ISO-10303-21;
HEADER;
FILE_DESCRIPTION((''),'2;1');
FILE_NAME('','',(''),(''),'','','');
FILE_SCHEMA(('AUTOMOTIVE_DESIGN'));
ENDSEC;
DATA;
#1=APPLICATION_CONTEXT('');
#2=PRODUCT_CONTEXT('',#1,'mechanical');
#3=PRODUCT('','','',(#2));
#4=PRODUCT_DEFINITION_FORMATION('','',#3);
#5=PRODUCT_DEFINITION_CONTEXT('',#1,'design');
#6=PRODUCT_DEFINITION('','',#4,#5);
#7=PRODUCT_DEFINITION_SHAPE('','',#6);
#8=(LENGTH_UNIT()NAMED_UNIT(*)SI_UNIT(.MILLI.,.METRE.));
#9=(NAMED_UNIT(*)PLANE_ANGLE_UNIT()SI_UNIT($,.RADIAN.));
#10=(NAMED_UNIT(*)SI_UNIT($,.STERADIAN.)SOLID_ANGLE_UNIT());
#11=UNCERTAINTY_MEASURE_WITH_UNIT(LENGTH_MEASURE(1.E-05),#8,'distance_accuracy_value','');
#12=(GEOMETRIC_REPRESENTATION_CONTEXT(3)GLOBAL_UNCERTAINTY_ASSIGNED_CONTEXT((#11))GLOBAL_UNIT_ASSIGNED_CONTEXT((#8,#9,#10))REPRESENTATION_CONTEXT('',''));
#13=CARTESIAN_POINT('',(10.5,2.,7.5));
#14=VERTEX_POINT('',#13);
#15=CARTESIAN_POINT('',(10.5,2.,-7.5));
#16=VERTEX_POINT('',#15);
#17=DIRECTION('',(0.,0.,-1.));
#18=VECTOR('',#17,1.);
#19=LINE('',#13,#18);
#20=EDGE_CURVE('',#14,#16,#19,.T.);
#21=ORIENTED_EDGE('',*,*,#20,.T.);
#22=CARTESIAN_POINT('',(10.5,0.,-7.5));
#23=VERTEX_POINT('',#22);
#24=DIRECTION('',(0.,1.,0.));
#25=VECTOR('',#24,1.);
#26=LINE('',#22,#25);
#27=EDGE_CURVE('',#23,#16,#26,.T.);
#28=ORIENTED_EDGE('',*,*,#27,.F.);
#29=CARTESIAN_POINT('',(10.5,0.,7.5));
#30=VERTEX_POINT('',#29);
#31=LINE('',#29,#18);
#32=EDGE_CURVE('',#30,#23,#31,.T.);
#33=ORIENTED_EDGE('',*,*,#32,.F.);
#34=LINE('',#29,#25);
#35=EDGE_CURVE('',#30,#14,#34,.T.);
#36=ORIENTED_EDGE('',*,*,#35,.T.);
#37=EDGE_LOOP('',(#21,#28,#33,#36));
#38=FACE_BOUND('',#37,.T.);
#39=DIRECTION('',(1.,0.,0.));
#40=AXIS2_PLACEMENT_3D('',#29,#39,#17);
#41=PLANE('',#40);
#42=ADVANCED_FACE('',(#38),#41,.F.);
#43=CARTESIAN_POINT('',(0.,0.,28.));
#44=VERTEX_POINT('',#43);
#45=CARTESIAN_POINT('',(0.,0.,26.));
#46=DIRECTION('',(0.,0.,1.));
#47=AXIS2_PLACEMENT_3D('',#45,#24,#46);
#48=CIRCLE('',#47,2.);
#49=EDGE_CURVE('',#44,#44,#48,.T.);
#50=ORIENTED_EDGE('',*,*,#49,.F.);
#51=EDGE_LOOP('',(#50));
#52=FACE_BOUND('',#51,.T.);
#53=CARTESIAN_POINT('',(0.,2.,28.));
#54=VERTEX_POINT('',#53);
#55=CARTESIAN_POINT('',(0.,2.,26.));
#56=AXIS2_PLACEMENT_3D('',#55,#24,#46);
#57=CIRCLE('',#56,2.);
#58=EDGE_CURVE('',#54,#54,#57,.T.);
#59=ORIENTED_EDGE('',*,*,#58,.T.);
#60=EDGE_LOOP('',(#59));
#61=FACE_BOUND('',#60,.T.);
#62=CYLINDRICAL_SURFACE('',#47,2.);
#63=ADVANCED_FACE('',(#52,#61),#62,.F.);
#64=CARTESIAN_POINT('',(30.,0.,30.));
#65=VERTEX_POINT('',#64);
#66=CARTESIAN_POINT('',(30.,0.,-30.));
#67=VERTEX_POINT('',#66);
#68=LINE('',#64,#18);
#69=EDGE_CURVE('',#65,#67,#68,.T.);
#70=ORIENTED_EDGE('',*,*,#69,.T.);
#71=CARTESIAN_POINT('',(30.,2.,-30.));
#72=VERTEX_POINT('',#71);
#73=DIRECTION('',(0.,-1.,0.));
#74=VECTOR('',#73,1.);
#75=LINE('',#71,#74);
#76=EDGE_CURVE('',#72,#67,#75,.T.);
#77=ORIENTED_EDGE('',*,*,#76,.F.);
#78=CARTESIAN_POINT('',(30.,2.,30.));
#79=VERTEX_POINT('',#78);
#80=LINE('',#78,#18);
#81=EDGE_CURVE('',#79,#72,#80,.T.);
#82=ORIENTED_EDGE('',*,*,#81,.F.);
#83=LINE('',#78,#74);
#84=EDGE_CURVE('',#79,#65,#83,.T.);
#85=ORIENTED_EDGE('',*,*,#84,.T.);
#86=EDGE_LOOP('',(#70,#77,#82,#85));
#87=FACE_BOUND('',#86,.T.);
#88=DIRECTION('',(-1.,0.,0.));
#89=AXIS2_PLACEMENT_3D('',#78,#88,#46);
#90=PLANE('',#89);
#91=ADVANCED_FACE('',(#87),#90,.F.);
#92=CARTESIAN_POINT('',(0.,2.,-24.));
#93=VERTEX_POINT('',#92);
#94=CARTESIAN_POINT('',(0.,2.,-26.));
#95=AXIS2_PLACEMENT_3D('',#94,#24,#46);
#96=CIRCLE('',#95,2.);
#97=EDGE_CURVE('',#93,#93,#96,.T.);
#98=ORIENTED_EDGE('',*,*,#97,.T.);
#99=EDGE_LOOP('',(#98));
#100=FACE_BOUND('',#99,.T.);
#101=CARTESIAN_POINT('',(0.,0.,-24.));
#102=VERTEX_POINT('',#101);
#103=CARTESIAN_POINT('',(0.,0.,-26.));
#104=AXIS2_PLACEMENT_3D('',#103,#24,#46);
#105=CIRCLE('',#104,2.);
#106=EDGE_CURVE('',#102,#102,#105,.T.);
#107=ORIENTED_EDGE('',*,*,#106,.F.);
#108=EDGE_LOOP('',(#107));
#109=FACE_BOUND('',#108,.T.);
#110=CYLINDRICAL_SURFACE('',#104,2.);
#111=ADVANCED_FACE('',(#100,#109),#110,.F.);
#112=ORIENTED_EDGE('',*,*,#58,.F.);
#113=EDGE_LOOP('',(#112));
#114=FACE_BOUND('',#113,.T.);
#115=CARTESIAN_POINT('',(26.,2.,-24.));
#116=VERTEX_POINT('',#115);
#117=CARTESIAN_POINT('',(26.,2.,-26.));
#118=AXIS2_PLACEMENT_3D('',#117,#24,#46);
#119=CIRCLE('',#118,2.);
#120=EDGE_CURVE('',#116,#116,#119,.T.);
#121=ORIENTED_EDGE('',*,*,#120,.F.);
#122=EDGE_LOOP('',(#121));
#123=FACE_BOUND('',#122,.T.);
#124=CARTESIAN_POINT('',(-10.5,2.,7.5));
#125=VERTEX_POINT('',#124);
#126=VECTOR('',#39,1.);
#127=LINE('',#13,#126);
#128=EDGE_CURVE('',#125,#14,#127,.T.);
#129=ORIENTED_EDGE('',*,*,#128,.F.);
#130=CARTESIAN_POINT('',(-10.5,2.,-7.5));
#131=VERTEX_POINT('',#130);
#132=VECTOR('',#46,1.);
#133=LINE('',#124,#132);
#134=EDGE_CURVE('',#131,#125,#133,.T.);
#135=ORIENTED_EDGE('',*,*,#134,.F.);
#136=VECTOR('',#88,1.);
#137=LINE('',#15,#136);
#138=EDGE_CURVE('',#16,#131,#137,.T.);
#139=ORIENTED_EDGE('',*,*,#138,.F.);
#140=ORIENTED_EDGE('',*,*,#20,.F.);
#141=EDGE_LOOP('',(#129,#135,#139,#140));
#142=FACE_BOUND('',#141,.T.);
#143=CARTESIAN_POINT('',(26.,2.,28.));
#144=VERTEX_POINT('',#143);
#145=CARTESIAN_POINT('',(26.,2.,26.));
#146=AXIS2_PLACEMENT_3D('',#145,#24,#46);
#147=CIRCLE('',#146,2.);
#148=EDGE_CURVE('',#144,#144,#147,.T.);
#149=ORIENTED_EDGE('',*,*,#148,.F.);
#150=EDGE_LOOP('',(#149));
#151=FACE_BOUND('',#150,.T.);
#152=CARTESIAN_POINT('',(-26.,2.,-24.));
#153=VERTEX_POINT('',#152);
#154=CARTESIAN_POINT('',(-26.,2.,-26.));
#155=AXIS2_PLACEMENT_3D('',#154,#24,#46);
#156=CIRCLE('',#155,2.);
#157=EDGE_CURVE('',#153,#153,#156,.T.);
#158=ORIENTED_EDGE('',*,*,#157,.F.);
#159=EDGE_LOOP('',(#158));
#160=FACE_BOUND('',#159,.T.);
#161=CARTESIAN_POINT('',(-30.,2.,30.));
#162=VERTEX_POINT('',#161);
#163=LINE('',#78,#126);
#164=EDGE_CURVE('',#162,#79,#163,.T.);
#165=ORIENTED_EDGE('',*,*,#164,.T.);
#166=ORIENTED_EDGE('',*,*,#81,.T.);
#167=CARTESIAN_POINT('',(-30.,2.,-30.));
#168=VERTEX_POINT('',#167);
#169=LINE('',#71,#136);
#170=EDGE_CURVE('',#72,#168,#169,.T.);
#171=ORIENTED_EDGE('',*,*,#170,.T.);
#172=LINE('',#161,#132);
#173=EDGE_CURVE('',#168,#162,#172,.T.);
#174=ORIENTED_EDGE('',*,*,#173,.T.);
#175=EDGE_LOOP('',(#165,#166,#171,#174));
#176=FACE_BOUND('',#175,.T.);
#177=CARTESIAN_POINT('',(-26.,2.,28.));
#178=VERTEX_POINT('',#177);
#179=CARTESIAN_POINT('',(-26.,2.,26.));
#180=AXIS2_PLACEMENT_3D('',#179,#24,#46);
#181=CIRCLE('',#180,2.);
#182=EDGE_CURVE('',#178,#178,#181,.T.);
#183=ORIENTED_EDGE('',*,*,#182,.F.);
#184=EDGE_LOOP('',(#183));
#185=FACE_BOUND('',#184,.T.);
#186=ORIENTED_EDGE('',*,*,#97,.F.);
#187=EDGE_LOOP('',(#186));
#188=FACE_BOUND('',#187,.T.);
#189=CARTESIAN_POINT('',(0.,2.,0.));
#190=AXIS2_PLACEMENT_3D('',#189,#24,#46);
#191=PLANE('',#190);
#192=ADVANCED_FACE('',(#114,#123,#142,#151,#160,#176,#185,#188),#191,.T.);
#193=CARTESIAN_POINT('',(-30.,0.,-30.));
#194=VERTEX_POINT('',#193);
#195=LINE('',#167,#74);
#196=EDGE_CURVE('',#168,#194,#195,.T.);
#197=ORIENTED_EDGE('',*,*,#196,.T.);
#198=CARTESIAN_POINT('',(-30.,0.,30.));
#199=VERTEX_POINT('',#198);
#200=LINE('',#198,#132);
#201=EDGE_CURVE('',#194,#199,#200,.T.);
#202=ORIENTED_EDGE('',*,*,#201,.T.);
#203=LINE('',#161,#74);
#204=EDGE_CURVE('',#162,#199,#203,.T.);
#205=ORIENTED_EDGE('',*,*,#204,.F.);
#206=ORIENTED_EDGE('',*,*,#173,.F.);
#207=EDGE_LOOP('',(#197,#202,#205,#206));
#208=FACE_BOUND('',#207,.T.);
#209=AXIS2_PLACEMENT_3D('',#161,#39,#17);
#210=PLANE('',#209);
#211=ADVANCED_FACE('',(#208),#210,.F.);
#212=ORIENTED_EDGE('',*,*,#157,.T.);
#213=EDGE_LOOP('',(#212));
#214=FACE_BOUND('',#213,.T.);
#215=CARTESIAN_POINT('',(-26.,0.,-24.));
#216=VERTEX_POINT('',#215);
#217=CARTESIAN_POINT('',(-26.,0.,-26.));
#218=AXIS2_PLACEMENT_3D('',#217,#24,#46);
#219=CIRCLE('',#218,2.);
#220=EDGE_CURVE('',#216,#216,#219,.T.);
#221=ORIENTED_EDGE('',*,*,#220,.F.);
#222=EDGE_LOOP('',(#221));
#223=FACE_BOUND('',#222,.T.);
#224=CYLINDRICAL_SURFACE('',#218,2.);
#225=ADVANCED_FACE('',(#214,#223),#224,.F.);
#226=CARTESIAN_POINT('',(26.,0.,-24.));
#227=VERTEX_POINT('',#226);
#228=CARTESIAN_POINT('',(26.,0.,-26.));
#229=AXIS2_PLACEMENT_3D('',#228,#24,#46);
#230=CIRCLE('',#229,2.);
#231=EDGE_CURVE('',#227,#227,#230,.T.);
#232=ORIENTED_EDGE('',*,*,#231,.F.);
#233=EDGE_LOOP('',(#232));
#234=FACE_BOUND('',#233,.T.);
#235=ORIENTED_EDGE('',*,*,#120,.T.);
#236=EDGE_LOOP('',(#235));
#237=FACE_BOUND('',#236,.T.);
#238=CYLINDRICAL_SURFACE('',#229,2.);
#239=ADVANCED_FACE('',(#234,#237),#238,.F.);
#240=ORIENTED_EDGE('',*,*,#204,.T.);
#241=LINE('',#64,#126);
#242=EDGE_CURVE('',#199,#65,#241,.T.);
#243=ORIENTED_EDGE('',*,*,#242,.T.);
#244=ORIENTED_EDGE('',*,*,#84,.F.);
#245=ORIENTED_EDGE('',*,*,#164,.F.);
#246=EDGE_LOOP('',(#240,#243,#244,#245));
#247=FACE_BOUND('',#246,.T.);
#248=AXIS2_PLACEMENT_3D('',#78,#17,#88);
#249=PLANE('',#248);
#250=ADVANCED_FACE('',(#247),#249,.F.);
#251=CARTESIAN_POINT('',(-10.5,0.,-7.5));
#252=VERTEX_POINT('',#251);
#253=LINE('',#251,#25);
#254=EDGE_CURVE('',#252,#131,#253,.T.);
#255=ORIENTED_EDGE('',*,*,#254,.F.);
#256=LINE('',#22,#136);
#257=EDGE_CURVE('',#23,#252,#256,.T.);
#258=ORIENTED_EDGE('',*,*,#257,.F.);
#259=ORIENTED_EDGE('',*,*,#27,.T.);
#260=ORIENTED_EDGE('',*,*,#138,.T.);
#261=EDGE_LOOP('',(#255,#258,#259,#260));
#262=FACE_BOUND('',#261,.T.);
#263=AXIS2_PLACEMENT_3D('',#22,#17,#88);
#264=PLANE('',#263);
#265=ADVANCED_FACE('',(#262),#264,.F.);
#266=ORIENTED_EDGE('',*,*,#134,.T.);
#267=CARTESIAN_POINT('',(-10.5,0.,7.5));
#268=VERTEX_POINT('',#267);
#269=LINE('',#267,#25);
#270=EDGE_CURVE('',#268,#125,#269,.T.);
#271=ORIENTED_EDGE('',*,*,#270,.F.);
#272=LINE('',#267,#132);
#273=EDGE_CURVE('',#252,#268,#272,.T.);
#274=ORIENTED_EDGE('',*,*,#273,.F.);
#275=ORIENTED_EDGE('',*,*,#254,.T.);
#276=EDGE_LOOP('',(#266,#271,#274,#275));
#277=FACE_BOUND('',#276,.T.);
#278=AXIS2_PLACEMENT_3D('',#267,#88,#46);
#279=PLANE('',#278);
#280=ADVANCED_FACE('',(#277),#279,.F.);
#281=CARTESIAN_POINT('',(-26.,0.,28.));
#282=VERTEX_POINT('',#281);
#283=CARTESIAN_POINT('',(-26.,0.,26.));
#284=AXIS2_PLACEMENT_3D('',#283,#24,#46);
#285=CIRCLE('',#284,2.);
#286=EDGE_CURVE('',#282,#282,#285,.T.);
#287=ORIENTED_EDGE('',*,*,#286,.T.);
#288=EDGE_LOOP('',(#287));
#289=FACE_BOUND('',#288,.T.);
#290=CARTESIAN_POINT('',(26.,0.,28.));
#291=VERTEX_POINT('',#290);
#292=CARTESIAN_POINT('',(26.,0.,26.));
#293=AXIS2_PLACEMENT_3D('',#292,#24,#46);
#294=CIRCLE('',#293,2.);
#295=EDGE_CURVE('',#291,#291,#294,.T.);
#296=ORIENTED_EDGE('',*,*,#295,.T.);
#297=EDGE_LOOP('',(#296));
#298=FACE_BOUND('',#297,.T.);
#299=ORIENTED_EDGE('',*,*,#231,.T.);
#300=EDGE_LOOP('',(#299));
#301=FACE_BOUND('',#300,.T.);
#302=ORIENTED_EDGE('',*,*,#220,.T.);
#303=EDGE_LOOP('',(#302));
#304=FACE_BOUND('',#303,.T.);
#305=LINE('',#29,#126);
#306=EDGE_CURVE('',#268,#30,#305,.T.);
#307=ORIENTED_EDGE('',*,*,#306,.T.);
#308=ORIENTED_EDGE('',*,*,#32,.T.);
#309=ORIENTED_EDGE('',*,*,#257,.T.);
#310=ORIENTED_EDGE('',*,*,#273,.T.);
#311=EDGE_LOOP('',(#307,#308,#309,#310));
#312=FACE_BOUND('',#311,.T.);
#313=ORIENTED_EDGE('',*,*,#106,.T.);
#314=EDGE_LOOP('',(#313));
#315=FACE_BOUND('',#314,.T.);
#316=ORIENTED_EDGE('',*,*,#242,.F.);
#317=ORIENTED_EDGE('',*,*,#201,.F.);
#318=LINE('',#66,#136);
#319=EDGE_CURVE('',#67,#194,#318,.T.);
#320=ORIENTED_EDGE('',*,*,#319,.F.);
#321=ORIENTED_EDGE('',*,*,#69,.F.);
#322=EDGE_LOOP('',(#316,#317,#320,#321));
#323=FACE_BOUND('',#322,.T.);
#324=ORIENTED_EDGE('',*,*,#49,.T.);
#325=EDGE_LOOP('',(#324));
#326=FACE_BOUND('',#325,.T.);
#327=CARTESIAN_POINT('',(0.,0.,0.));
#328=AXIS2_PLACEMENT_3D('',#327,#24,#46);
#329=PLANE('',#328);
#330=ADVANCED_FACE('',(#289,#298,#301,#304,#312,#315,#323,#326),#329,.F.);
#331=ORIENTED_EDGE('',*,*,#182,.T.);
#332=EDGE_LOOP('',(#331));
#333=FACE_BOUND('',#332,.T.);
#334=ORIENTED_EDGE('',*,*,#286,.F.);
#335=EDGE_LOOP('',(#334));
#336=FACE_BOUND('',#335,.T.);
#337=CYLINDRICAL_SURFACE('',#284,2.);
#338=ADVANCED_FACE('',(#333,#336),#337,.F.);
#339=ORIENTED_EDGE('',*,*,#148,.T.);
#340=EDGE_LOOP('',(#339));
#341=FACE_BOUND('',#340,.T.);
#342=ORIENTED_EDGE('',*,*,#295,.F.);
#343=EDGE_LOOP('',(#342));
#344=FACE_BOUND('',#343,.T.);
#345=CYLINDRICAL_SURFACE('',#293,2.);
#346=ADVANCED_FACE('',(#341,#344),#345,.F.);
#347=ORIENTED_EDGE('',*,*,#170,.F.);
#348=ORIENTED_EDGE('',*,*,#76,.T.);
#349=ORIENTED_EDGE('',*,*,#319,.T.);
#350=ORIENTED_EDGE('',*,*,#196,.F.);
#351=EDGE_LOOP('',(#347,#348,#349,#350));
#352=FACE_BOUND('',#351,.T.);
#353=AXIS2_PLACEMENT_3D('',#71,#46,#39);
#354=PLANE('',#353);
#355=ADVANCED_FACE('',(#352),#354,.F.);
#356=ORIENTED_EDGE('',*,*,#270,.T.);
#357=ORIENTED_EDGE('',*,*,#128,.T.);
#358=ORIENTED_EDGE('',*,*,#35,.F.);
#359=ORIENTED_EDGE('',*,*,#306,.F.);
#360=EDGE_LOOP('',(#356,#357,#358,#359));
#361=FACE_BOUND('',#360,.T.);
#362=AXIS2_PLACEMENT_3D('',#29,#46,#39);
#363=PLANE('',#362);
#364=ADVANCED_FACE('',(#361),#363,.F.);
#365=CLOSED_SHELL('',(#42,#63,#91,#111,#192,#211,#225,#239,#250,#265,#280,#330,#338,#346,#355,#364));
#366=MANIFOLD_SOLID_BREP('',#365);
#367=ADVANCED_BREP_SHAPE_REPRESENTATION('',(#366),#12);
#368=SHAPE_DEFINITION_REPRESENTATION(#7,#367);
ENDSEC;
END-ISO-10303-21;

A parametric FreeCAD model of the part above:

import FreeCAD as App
import Part
import Sketcher

doc = App.newDocument("Part")
body = doc.addObject("PartDesign::Body", "Body")

# Sketch on XZ plane
sketch1 = body.newObject("Sketcher::SketchObject", "Sketch")
sketch1.AttachmentSupport = (doc.getObject("XZ_Plane"), [""])
sketch1.MapMode = "FlatFace"
sketch1.addGeometry([
    Part.LineSegment(App.Vector(-30, -30, 0), App.Vector(-30, 30, 0)),
    Part.LineSegment(App.Vector(-30, 30, 0), App.Vector(30, 30, 0)),
    Part.LineSegment(App.Vector(30, 30, 0), App.Vector(30, -30, 0)),
    Part.LineSegment(App.Vector(30, -30, 0), App.Vector(-30, -30, 0)),
], False)
sketch1.addConstraint([
    Sketcher.Constraint("Coincident", 0, 2, 1, 1),
    Sketcher.Constraint("Coincident", 1, 2, 2, 1),
    Sketcher.Constraint("Coincident", 2, 2, 3, 1),
    Sketcher.Constraint("Coincident", 3, 2, 0, 1),
    Sketcher.Constraint("Vertical", 0),
    Sketcher.Constraint("Horizontal", 1),
    Sketcher.Constraint("Vertical", 2),
    Sketcher.Constraint("Horizontal", 3),
    Sketcher.Constraint("Symmetric", 0, 2, 2, 2, -1, 1),
    Sketcher.Constraint("Equal", 3, 0),
    Sketcher.Constraint("DistanceX", 1, 1, 1, 2, 60.0),
])
pad1 = body.newObject("PartDesign::Pad", "Pad")
pad1.Profile = sketch1
pad1.Length = 2
pad1.Reversed = True

# Sketch on XZ plane
sketch2 = body.newObject("Sketcher::SketchObject", "Sketch001")
sketch2.AttachmentSupport = (doc.getObject("XZ_Plane"), [""])
sketch2.MapMode = "FlatFace"
sketch2.AttachmentOffset = App.Placement(App.Vector(0, 0, -2), App.Rotation())
sketch2.addGeometry([
    Part.Circle(App.Vector(-26, -26, 0), App.Vector(0, 0, 1), 2),  # 0
    Part.Circle(App.Vector(0, -26, 0), App.Vector(0, 0, 1), 2),  # 1
    Part.Circle(App.Vector(26, -26, 0), App.Vector(0, 0, 1), 2),  # 2
    Part.Circle(App.Vector(26, 26, 0), App.Vector(0, 0, 1), 2),  # 3
    Part.Circle(App.Vector(0, 26, 0), App.Vector(0, 0, 1), 2),  # 4
    Part.Circle(App.Vector(-26, 26, 0), App.Vector(0, 0, 1), 2),  # 5
], False)
sketch2.addConstraint([
    Sketcher.Constraint("Equal", 0, 1),
    Sketcher.Constraint("Equal", 1, 2),
    Sketcher.Constraint("Equal", 2, 3),
    Sketcher.Constraint("Equal", 3, 4),
    Sketcher.Constraint("Equal", 4, 5),
    Sketcher.Constraint("Symmetric", 0, 3, 3, 3, -1, 1),
    Sketcher.Constraint("Symmetric", 1, 3, 4, 3, -1, 1),
    Sketcher.Constraint("Symmetric", 2, 3, 5, 3, -1, 1),
    Sketcher.Constraint("Symmetric", 0, 3, 2, 3, -2),
    Sketcher.Constraint("PointOnObject", 1, 3, -2),
    Sketcher.Constraint("Horizontal", 0, 3, 1, 3),
    Sketcher.Constraint("Diameter", 0, 4.0),
    Sketcher.Constraint("DistanceX", 0, 3, -1, 1, 26.0),
    Sketcher.Constraint("DistanceY", 0, 3, -1, 1, 26.0),
])
pocket1 = body.newObject("PartDesign::Pocket", "Pocket")
pocket1.Profile = sketch2
pocket1.Type = "ThroughAll"
pocket1.Reversed = True

# Sketch on XZ plane
sketch3 = body.newObject("Sketcher::SketchObject", "Sketch002")
sketch3.AttachmentSupport = (doc.getObject("XZ_Plane"), [""])
sketch3.MapMode = "FlatFace"
sketch3.AttachmentOffset = App.Placement(App.Vector(0, 0, -2), App.Rotation())
sketch3.addGeometry([
    Part.LineSegment(App.Vector(-10, -8, 0), App.Vector(-10, 8, 0)),
    Part.LineSegment(App.Vector(-10, 8, 0), App.Vector(10, 8, 0)),
    Part.LineSegment(App.Vector(10, 8, 0), App.Vector(10, -8, 0)),
    Part.LineSegment(App.Vector(10, -8, 0), App.Vector(-10, -8, 0)),
], False)
sketch3.addConstraint([
    Sketcher.Constraint("Coincident", 0, 2, 1, 1),
    Sketcher.Constraint("Coincident", 1, 2, 2, 1),
    Sketcher.Constraint("Coincident", 2, 2, 3, 1),
    Sketcher.Constraint("Coincident", 3, 2, 0, 1),
    Sketcher.Constraint("Vertical", 0),
    Sketcher.Constraint("Horizontal", 1),
    Sketcher.Constraint("Vertical", 2),
    Sketcher.Constraint("Horizontal", 3),
    Sketcher.Constraint("Symmetric", 0, 2, 2, 2, -1, 1),
    Sketcher.Constraint("DistanceX", 1, 1, 1, 2, 21.0),
    Sketcher.Constraint("DistanceY", 0, 1, 0, 2, 15.0),
])
pocket2 = body.newObject("PartDesign::Pocket", "Pocket001")
pocket2.Profile = sketch3
pocket2.Length = 2
pocket2.Reversed = True

doc.recompute()
